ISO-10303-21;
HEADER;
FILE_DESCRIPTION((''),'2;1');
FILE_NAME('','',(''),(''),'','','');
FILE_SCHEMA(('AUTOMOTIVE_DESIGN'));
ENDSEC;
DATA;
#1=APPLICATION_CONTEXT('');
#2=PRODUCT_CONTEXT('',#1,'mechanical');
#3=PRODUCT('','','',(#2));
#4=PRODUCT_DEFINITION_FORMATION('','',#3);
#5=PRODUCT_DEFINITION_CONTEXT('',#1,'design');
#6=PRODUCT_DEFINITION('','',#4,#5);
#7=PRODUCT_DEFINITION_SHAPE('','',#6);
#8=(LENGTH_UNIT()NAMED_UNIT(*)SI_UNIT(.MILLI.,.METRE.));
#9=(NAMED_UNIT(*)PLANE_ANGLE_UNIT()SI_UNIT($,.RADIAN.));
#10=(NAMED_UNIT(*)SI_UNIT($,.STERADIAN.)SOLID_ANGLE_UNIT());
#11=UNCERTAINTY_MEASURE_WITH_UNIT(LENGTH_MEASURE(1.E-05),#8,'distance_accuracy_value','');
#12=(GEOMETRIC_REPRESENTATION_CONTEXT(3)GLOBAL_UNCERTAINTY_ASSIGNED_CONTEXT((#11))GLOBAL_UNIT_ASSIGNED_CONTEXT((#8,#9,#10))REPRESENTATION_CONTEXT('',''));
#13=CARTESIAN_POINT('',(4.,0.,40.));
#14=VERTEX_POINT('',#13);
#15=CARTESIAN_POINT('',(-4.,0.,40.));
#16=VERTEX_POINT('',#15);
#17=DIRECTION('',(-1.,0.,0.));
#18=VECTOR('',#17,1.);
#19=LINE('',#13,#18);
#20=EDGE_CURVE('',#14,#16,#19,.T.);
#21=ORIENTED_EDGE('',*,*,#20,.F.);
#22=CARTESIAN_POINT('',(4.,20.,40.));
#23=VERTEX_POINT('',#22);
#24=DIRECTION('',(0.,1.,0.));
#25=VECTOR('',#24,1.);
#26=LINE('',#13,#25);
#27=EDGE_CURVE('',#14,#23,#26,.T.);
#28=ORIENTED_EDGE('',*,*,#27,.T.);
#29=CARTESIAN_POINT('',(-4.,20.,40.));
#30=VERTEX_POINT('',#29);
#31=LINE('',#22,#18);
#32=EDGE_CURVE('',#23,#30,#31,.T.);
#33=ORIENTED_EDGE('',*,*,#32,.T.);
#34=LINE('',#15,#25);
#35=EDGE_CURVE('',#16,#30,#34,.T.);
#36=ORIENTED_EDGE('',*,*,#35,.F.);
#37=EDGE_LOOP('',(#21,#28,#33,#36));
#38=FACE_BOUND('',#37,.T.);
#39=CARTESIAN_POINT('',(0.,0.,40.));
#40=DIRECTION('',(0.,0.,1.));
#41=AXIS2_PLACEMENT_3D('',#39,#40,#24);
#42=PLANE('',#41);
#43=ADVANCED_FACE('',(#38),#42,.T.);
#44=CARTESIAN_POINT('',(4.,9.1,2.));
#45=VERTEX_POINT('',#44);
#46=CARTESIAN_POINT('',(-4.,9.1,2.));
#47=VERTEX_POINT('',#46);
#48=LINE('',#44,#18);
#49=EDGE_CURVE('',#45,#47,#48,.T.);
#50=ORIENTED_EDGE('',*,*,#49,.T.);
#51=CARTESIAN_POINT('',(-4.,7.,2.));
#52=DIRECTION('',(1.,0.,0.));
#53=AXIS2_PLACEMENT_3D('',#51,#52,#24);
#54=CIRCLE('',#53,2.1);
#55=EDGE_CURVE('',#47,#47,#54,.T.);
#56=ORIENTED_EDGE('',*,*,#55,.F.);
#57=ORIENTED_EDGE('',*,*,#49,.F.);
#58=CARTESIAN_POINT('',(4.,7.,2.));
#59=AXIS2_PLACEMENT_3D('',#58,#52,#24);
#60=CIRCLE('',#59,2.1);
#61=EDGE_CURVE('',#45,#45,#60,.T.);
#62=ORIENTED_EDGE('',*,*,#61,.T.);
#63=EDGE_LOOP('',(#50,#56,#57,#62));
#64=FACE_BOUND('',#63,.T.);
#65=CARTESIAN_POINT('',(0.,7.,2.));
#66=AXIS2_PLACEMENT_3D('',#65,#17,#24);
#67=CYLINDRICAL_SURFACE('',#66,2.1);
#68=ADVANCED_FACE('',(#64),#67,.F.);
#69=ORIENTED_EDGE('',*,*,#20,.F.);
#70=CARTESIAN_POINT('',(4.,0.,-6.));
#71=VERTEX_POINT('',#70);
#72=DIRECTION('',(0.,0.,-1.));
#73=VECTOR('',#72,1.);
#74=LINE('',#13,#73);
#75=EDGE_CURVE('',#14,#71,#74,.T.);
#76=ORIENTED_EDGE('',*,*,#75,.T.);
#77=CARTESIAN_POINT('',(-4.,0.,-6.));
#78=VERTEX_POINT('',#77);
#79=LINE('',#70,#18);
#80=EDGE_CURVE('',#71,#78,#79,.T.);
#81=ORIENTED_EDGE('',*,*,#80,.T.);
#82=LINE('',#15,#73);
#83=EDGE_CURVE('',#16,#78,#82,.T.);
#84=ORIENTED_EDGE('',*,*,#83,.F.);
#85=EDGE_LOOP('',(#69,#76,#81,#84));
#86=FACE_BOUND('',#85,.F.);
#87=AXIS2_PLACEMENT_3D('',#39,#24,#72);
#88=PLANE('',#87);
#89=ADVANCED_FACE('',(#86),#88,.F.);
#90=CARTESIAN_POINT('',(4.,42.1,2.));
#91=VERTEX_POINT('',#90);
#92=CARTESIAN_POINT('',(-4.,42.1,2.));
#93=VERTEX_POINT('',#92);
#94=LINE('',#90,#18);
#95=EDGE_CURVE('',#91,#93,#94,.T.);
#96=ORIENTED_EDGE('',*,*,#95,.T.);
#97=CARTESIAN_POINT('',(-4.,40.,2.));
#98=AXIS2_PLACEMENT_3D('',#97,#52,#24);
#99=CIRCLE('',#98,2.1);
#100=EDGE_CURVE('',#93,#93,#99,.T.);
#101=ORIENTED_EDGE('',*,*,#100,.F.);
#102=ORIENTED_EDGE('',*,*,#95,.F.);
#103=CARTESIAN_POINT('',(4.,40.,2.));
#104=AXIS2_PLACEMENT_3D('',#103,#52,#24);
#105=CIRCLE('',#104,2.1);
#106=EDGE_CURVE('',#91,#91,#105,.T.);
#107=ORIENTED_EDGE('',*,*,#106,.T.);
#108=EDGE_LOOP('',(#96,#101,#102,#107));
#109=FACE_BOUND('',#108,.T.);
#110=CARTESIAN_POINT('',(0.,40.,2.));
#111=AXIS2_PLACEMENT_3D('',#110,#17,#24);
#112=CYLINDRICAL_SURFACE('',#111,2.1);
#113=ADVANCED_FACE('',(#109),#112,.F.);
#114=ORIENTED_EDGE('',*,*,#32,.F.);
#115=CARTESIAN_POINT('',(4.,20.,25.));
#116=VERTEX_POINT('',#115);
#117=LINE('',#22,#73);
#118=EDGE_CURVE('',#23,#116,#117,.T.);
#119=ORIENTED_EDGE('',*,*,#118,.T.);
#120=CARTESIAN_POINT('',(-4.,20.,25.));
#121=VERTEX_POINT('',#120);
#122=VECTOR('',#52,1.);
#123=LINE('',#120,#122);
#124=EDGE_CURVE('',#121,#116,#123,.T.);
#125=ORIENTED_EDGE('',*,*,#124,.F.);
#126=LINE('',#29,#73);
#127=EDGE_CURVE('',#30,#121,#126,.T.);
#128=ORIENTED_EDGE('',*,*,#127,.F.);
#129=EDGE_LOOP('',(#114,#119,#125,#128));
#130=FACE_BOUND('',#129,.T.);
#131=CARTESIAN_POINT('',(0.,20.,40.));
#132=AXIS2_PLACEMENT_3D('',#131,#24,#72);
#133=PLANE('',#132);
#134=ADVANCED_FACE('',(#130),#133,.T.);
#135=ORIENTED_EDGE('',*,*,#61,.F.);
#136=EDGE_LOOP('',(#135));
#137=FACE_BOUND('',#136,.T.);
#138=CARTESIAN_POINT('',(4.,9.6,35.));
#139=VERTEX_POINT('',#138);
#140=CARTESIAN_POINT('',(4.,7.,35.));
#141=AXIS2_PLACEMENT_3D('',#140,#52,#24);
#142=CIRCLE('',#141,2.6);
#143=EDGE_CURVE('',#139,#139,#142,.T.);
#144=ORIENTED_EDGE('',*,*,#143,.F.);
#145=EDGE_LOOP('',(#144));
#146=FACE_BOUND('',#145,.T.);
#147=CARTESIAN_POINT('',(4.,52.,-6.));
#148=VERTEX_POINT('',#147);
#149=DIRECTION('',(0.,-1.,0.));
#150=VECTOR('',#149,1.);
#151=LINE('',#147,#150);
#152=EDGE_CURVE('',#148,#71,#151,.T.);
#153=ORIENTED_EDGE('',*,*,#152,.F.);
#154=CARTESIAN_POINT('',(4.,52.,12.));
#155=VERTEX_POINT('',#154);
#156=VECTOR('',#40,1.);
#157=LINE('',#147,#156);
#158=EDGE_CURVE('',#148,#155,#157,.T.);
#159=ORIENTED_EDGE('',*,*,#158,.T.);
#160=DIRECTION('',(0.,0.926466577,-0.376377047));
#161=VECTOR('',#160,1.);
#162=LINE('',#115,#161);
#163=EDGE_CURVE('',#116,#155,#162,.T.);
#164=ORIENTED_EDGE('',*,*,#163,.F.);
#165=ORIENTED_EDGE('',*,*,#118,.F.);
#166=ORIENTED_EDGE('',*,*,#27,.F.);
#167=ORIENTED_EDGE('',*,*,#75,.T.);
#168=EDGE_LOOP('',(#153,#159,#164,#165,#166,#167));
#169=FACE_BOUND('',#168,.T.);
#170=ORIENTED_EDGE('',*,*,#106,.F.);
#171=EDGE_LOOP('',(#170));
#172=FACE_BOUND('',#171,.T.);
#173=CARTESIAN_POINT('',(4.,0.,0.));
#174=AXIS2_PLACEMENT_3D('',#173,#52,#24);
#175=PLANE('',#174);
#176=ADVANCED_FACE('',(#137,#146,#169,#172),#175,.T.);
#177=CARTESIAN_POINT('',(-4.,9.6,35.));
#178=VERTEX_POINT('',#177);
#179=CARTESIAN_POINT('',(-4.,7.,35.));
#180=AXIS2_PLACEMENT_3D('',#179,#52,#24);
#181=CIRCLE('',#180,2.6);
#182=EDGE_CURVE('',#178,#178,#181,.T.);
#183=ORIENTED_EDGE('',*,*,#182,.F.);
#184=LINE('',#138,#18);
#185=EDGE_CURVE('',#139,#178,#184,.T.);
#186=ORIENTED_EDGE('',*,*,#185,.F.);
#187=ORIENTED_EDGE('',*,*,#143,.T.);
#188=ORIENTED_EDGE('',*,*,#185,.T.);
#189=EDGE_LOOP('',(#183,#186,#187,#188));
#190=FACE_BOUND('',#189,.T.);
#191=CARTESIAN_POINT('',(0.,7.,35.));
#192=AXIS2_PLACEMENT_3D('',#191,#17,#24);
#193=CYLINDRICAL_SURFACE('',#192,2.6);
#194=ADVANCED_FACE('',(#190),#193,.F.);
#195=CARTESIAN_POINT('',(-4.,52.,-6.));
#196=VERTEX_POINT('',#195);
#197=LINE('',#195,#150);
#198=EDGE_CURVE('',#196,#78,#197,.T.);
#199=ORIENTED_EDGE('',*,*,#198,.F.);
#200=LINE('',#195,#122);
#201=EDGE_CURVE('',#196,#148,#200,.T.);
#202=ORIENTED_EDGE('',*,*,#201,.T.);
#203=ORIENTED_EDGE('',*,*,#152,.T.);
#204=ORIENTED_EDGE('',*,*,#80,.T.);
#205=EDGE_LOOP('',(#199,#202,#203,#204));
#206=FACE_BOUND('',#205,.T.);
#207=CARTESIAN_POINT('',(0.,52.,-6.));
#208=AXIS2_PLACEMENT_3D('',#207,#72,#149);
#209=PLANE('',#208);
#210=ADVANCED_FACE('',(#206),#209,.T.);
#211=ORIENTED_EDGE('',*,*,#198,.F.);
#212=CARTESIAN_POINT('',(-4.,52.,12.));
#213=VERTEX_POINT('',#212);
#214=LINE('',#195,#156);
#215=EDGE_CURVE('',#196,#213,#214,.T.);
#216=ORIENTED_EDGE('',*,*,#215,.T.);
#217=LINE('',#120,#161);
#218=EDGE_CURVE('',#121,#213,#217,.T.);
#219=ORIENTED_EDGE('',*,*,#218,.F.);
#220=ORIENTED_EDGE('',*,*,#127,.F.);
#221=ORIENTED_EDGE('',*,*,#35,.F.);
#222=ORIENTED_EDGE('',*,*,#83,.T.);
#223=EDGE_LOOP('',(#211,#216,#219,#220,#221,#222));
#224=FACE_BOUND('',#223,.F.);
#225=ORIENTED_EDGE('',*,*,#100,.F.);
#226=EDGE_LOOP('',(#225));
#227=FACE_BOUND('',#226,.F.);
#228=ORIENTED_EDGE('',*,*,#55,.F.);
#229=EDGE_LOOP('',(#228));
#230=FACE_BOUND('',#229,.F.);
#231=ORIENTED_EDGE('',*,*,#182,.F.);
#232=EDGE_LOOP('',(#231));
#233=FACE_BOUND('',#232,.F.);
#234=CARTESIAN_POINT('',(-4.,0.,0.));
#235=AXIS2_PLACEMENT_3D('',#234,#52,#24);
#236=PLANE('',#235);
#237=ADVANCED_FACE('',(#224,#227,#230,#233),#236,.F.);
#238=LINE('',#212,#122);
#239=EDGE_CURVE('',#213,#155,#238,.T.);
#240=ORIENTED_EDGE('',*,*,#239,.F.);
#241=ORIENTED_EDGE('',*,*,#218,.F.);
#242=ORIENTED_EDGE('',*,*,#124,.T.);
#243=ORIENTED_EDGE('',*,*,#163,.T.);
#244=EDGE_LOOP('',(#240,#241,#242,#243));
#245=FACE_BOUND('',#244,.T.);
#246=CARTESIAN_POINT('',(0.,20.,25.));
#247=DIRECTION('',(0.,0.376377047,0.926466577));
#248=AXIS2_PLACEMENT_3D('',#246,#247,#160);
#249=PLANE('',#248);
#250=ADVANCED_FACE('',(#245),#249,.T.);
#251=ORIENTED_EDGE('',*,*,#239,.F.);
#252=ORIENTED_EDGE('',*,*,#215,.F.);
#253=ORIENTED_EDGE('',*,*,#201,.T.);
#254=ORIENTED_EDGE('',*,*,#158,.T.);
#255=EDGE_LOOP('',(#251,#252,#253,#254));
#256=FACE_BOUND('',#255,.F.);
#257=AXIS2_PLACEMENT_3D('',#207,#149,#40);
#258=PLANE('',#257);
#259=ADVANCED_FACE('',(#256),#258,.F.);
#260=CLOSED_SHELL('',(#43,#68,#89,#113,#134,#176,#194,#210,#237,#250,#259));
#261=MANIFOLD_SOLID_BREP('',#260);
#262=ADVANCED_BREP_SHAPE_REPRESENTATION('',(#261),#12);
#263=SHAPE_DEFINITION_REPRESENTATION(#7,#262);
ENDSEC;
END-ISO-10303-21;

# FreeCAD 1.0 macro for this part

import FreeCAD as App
import Part
import Sketcher


def add_polygon(sketch, points):
    """Adds a closed chain of lines whose ends are joined by coincident constraints."""
    first, n = sketch.GeometryCount, len(points)
    for a, b in zip(points, points[1:] + points[:1]):
        sketch.addGeometry(Part.LineSegment(App.Vector(*a, 0), App.Vector(*b, 0)), False)
    for i in range(n):
        sketch.addConstraint(Sketcher.Constraint("Coincident", first + i, 2, first + (i + 1) % n, 1))

doc = App.newDocument("Part")
body = doc.addObject("PartDesign::Body", "Body")

sketch1 = body.newObject("Sketcher::SketchObject", "Sketch")
sketch1.AttachmentSupport = (doc.getObject("YZ_Plane"), [""])
sketch1.MapMode = "FlatFace"
add_polygon(sketch1, [(0, -6), (52, -6), (52, 12), (20, 25), (20, 40), (0, 40)])
sketch1.addGeometry(Part.Circle(App.Vector(7, 2, 0), App.Vector(0, 0, 1), 2.1), False)
sketch1.addGeometry(Part.Circle(App.Vector(40, 2, 0), App.Vector(0, 0, 1), 2.1), False)
sketch1.addGeometry(Part.Circle(App.Vector(7, 35, 0), App.Vector(0, 0, 1), 2.6), False)
sketch1.addConstraint(Sketcher.Constraint("Horizontal", 0))
sketch1.addConstraint(Sketcher.Constraint("Vertical", 1))
sketch1.addConstraint(Sketcher.Constraint("Vertical", 3))
sketch1.addConstraint(Sketcher.Constraint("Horizontal", 4))
sketch1.addConstraint(Sketcher.Constraint("Vertical", 5))
sketch1.addConstraint(Sketcher.Constraint("Equal", 6, 7))
sketch1.addConstraint(Sketcher.Constraint("PointOnObject", 4, 2, -2))
sketch1.addConstraint(Sketcher.Constraint("Horizontal", 6, 3, 7, 3))
sketch1.addConstraint(Sketcher.Constraint("Vertical", 6, 3, 8, 3))
sketch1.addConstraint(Sketcher.Constraint("Diameter", 6, 4.2))
sketch1.addConstraint(Sketcher.Constraint("Diameter", 8, 5.2))
sketch1.addConstraint(Sketcher.Constraint("DistanceX", 0, 1, 0, 2, 52.0))
sketch1.addConstraint(Sketcher.Constraint("DistanceX", 4, 2, 4, 1, 20.0))
sketch1.addConstraint(Sketcher.Constraint("DistanceY", 5, 2, 5, 1, 46.0))
sketch1.addConstraint(Sketcher.Constraint("DistanceX", 2, 2, 7, 3, 20.0))
sketch1.addConstraint(Sketcher.Constraint("DistanceY", 1, 1, 1, 2, 18.0))
sketch1.addConstraint(Sketcher.Constraint("DistanceY", 3, 1, 3, 2, 15.0))
sketch1.addConstraint(Sketcher.Constraint("DistanceX", -1, 1, 6, 3, 7.0))
sketch1.addConstraint(Sketcher.Constraint("DistanceY", -1, 1, 6, 3, 2.0))
sketch1.addConstraint(Sketcher.Constraint("DistanceY", -1, 1, 8, 3, 35.0))
sketch1.addConstraint(Sketcher.Constraint("DistanceY", 0, 2, -1, 1, 6.0))
pad1 = body.newObject("PartDesign::Pad", "Pad")
pad1.Profile = sketch1
pad1.Length = 8
pad1.Midplane = True

doc.recompute()
